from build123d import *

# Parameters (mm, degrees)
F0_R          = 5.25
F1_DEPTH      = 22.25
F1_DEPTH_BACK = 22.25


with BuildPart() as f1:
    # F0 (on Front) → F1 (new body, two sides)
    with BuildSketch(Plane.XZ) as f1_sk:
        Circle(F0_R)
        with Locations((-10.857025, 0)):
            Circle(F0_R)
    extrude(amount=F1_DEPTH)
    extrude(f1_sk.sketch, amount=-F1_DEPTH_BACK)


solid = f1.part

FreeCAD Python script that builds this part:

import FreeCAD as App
import Part
import Sketcher

V = App.Vector

doc = App.newDocument("Part")
params = doc.addObject("Spreadsheet::Sheet", "Params")
for row, (alias, value) in enumerate([
    ("sketch1_diameter", "10.5 mm"),
    ("pad1_length", "22.25 mm"),
    ("pad1_length2", "22.25 mm"),
], start=1):
    params.set(f"A{row}", alias)
    params.set(f"B{row}", "=" + value)
    params.setAlias(f"B{row}", alias)

body = doc.addObject("PartDesign::Body", "Body")
body.AllowCompound = True

sketch1 = body.newObject("Sketcher::SketchObject", "Sketch")
sketch1.AttachmentSupport = (doc.getObject("XZ_Plane"), [""])
sketch1.MapMode = "FlatFace"
sketch1.addGeometry(Part.Circle(V(0, 0, 0), V(0, 0, 1), 5), False)
sketch1.addGeometry(Part.Circle(V(-11, 0, 0), V(0, 0, 1), 5), False)
sketch1.addConstraint(Sketcher.Constraint("Coincident", 0, 3, -1, 1))
sketch1.addConstraint(Sketcher.Constraint("Equal", 0, 1))
sketch1.addConstraint(Sketcher.Constraint("PointOnObject", 1, 3, -1))
sketch1.addConstraint(Sketcher.Constraint("Diameter", 0, 10.5))
sketch1.addConstraint(Sketcher.Constraint("DistanceX", 1, 3, -1, 1, 10.857025))
sketch1.setExpression("Constraints[3]", "Params.sketch1_diameter")
pad1 = body.newObject("PartDesign::Pad", "Pad")
pad1.Profile = sketch1
pad1.Type = "TwoLengths"
pad1.setExpression("Length", "Params.pad1_length")
pad1.setExpression("Length2", "Params.pad1_length2")

doc.recompute()
